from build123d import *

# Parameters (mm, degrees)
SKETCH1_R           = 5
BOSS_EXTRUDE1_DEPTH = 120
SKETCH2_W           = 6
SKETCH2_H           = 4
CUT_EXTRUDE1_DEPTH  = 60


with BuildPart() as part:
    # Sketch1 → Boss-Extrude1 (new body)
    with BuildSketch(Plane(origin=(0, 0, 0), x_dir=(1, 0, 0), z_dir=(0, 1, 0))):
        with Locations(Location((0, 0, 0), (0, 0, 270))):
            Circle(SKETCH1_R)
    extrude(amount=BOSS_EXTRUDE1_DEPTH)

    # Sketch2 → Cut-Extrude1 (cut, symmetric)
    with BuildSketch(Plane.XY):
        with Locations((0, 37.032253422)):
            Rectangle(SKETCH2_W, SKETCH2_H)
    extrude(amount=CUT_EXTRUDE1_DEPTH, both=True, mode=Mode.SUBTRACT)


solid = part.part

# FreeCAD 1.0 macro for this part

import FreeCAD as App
import Part
import Sketcher

V = App.Vector

doc = App.newDocument("Part")
body = doc.addObject("PartDesign::Body", "Body")

# Sketch on XZ plane
sketch1 = body.newObject("Sketcher::SketchObject", "Sketch")
sketch1.AttachmentSupport = (doc.getObject("XZ_Plane"), [""])
sketch1.MapMode = "FlatFace"
sketch1.addGeometry(Part.Circle(V(0, 0, 0), V(0, 0, 1), 5), False)
sketch1.addConstraint(Sketcher.Constraint("Coincident", 0, 3, -1, 1))
sketch1.addConstraint(Sketcher.Constraint("Diameter", 0, 10.0))
pad1 = body.newObject("PartDesign::Pad", "Pad")
pad1.Profile = sketch1
pad1.Length = 120
pad1.Reversed = True

# Sketch on XY plane
sketch2 = body.newObject("Sketcher::SketchObject", "Sketch001")
sketch2.AttachmentSupport = (doc.getObject("XY_Plane"), [""])
sketch2.MapMode = "FlatFace"
sketch2.addGeometry(Part.LineSegment(V(-3, 39.032253, 0), V(-3, 35.032253, 0)), False)
sketch2.addGeometry(Part.LineSegment(V(-3, 35.032253, 0), V(3, 35.032253, 0)), False)
sketch2.addGeometry(Part.LineSegment(V(3, 35.032253, 0), V(3, 39.032253, 0)), False)
sketch2.addGeometry(Part.LineSegment(V(3, 39.032253, 0), V(-3, 39.032253, 0)), False)
sketch2.addConstraint(Sketcher.Constraint("Coincident", 0, 2, 1, 1))
sketch2.addConstraint(Sketcher.Constraint("Coincident", 1, 2, 2, 1))
sketch2.addConstraint(Sketcher.Constraint("Coincident", 2, 2, 3, 1))
sketch2.addConstraint(Sketcher.Constraint("Coincident", 3, 2, 0, 1))
sketch2.addConstraint(Sketcher.Constraint("Vertical", 0))
sketch2.addConstraint(Sketcher.Constraint("Horizontal", 1))
sketch2.addConstraint(Sketcher.Constraint("Vertical", 2))
sketch2.addConstraint(Sketcher.Constraint("Horizontal", 3))
sketch2.addConstraint(Sketcher.Constraint("DistanceX", 1, 1, 1, 2, 6.0))
sketch2.addConstraint(Sketcher.Constraint("DistanceY", 0, 2, 0, 1, 4.0))
sketch2.addConstraint(Sketcher.Constraint("DistanceX", 0, 2, -1, 1, 3.0))
sketch2.addConstraint(Sketcher.Constraint("DistanceY", -1, 1, 0, 2, 35.032253))
pocket1 = body.newObject("PartDesign::Pocket", "Pocket")
pocket1.Profile = sketch2
pocket1.Length = 120
pocket1.Midplane = True

doc.recompute()
